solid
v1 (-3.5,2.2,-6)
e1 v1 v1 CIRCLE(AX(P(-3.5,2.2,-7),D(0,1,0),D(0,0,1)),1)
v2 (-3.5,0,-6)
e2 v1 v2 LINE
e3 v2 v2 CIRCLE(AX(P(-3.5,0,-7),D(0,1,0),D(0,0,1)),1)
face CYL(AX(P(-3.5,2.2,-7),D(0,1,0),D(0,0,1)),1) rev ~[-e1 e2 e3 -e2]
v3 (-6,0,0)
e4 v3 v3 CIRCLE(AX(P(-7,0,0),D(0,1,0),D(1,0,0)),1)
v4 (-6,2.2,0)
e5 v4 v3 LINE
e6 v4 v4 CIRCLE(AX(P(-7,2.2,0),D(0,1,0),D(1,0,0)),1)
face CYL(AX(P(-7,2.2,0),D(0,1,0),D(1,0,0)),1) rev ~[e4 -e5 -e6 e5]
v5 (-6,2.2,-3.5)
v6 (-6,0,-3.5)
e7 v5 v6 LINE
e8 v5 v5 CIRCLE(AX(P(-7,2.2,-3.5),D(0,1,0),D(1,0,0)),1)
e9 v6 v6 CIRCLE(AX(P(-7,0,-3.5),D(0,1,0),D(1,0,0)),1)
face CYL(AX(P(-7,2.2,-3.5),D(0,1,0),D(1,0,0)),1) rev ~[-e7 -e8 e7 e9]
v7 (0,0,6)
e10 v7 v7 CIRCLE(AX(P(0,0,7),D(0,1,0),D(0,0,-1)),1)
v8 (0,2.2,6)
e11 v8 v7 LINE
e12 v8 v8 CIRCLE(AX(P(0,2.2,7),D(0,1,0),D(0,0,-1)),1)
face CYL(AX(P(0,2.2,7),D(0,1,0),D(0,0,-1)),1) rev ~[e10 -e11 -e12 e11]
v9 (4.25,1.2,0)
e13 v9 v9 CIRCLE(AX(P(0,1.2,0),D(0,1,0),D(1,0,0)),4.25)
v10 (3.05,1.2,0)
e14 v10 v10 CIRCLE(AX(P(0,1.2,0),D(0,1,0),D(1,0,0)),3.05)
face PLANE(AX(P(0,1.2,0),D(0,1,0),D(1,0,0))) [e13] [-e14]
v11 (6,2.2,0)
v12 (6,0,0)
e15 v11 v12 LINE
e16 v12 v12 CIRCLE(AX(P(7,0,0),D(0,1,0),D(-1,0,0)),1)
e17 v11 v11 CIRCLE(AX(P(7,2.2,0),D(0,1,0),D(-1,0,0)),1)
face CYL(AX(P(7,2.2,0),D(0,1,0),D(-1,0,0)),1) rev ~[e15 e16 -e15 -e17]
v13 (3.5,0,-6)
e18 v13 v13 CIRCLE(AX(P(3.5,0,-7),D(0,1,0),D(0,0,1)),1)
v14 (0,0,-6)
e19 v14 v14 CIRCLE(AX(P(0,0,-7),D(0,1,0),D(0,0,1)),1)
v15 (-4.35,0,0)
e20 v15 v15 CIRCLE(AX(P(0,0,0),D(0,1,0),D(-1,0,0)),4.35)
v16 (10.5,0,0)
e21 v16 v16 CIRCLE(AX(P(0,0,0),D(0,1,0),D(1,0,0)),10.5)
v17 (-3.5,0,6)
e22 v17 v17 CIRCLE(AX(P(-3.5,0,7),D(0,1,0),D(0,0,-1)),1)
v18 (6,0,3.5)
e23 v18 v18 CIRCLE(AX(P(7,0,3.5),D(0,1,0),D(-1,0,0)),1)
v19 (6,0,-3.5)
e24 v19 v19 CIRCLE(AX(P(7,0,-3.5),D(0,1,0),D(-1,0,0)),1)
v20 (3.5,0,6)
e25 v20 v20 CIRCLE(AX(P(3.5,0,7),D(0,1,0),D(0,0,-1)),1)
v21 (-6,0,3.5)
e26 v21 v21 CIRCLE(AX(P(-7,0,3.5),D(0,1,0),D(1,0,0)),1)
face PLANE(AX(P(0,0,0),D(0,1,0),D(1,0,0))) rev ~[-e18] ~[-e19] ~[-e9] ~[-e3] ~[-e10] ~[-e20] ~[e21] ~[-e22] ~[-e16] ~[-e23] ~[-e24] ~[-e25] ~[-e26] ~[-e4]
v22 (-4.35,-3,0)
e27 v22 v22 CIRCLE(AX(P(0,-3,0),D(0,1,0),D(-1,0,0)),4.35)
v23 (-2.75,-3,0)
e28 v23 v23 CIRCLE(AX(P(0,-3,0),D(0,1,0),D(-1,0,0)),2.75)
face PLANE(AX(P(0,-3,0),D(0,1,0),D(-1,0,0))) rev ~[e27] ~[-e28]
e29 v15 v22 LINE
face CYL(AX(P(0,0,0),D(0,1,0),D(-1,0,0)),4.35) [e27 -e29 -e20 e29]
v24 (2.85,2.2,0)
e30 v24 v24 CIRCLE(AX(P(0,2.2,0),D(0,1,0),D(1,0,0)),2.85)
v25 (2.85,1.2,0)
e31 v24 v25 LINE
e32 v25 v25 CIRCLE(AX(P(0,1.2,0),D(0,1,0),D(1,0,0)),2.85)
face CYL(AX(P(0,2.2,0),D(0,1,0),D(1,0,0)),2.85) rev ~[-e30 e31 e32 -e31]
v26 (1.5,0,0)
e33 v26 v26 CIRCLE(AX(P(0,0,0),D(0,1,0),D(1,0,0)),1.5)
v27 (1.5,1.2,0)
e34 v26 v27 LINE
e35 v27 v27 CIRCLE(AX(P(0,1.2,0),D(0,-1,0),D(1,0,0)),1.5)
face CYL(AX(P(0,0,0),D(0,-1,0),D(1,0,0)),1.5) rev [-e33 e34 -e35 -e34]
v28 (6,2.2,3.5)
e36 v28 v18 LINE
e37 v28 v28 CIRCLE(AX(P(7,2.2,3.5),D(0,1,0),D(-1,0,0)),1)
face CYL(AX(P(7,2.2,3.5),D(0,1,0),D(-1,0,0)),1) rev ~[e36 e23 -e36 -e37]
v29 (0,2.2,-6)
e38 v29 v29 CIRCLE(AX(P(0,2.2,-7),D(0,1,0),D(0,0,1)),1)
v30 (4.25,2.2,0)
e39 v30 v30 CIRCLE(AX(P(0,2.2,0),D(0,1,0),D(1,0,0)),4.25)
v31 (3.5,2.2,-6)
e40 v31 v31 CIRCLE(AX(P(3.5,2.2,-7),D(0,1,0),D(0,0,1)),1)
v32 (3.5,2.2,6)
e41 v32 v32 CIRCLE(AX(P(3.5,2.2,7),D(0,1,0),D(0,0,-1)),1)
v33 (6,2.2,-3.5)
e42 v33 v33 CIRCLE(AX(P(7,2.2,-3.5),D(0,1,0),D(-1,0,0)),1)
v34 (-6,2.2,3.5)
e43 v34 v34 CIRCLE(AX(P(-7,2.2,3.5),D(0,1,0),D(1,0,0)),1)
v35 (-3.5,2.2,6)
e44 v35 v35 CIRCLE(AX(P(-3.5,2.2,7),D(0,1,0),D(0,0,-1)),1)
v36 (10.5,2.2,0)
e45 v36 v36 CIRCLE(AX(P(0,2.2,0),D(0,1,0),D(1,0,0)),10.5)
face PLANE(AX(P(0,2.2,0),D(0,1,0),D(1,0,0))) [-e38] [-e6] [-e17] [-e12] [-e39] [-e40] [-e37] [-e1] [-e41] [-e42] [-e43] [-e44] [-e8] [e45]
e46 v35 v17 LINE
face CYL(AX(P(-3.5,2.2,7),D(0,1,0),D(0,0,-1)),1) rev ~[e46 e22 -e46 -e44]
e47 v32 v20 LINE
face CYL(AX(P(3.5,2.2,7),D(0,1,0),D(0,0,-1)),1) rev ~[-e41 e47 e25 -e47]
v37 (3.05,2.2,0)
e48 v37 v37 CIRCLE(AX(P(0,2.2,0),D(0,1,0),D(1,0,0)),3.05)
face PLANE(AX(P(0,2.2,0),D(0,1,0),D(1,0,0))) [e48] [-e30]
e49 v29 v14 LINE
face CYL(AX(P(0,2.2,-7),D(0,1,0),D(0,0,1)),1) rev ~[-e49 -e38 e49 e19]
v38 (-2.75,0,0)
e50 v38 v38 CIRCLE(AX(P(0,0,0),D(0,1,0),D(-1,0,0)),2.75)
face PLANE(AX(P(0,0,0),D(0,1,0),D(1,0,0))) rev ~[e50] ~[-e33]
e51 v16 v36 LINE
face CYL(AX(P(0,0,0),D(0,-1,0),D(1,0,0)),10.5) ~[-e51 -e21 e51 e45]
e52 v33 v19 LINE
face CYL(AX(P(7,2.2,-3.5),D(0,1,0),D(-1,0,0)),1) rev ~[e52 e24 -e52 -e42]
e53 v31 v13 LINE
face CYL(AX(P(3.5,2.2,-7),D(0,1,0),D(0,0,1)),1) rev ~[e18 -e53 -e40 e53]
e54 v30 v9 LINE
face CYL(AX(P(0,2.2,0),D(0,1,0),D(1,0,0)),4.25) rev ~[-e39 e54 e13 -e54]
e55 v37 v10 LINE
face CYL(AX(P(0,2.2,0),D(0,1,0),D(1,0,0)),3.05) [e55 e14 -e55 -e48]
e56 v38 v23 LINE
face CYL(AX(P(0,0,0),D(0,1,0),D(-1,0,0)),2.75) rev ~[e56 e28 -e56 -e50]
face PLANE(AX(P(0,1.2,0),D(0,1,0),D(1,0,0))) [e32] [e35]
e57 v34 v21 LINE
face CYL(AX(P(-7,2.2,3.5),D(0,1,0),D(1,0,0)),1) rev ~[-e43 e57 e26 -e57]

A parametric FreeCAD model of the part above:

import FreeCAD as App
import Part
import Sketcher
Q = App.Units.Quantity

doc = App.newDocument("Part")
body = doc.addObject("PartDesign::Body", "Body")

# Sketch on XZ plane
sketch1 = body.newObject("Sketcher::SketchObject", "Sketch")
sketch1.AttachmentSupport = (doc.getObject("XZ_Plane"), [""])
sketch1.MapMode = "FlatFace"
sketch1.addGeometry([
    Part.Circle(App.Vector(0, 0, 0), App.Vector(0, 0, 1), 4.35),
    Part.Circle(App.Vector(0, 0, 0), App.Vector(0, 0, 1), 2.75),
], False)
sketch1.addConstraint([
    Sketcher.Constraint("Coincident", 0, 3, -1, 1),
    Sketcher.Constraint("Coincident", 1, 3, -1, 1),
    Sketcher.Constraint("Diameter", 0, Q("8.7 mm")),
    Sketcher.Constraint("Diameter", 1, Q("5.5 mm")),
])
pad1 = body.newObject("PartDesign::Pad", "Pad")
pad1.Profile = sketch1
pad1.Length = 3

# Sketch on XZ plane
sketch2 = body.newObject("Sketcher::SketchObject", "Sketch001")
sketch2.AttachmentSupport = (doc.getObject("XZ_Plane"), [""])
sketch2.MapMode = "FlatFace"
sketch2.addGeometry([
    Part.Circle(App.Vector(0, 0, 0), App.Vector(0, 0, 1), 10.5),
    Part.Circle(App.Vector(0, 0, 0), App.Vector(0, 0, 1), 1.5),
], False)
sketch2.addConstraint([
    Sketcher.Constraint("Coincident", 0, 3, -1, 1),
    Sketcher.Constraint("Coincident", 1, 3, -1, 1),
    Sketcher.Constraint("Diameter", 0, Q("21 mm")),
    Sketcher.Constraint("Diameter", 1, Q("3 mm")),
])
pad2 = body.newObject("PartDesign::Pad", "Pad001")
pad2.Profile = sketch2
pad2.Length = 2.2
pad2.Reversed = True

# Sketch on XZ plane
sketch3 = body.newObject("Sketcher::SketchObject", "Sketch002")
sketch3.AttachmentSupport = (doc.getObject("XZ_Plane"), [""])
sketch3.MapMode = "FlatFace"
sketch3.AttachmentOffset = App.Placement(App.Vector(0, 0, -2.2), App.Rotation())
sketch3.addGeometry([
    Part.Circle(App.Vector(0, 0, 0), App.Vector(0, 0, 1), 2.85),
    Part.Circle(App.Vector(0, 0, 0), App.Vector(0, 0, 1), 4.25),
    Part.Circle(App.Vector(0, 0, 0), App.Vector(0, 0, 1), 3.05),
], False)
sketch3.addConstraint([
    Sketcher.Constraint("Coincident", 0, 3, -1, 1),
    Sketcher.Constraint("Coincident", 1, 3, -1, 1),
    Sketcher.Constraint("Coincident", 2, 3, -1, 1),
    Sketcher.Constraint("Diameter", 0, Q("5.7 mm")),
    Sketcher.Constraint("Diameter", 1, Q("8.5 mm")),
    Sketcher.Constraint("Diameter", 2, Q("6.1 mm")),
])
pocket1 = body.newObject("PartDesign::Pocket", "Pocket")
pocket1.Profile = sketch3
pocket1.Length = 1
pocket1.Reversed = True

# Sketch on XZ plane
sketch4 = body.newObject("Sketcher::SketchObject", "Sketch003")
sketch4.AttachmentSupport = (doc.getObject("XZ_Plane"), [""])
sketch4.MapMode = "FlatFace"
sketch4.AttachmentOffset = App.Placement(App.Vector(0, 0, -2.2), App.Rotation())
sketch4.addGeometry([
    Part.Circle(App.Vector(-7, 0, 0), App.Vector(0, 0, 1), 1),
    Part.Circle(App.Vector(-7, 3.5, 0), App.Vector(0, 0, 1), 1),
    Part.Circle(App.Vector(-7, -3.5, 0), App.Vector(0, 0, 1), 1),
], False)
sketch4.addConstraint([
    Sketcher.Constraint("Equal", 0, 1),
    Sketcher.Constraint("Equal", 1, 2),
    Sketcher.Constraint("Symmetric", 1, 3, 2, 3, -1),
    Sketcher.Constraint("PointOnObject", 0, 3, -1),
    Sketcher.Constraint("Vertical", 0, 3, 1, 3),
    Sketcher.Constraint("Diameter", 0, Q("2 mm")),
    Sketcher.Constraint("DistanceX", 0, 3, -1, 1, Q("7 mm")),
    Sketcher.Constraint("DistanceY", 2, 3, 1, 3, Q("7 mm")),
])
pocket2 = body.newObject("PartDesign::Pocket", "Pocket001")
pocket2.Profile = sketch4
pocket2.Length = 7.25
pocket2.Reversed = True
doc.recompute()

polarpattern = body.newObject("PartDesign::PolarPattern", "PolarPattern")
polarpattern.Originals = [pocket2]
polarpattern.Axis = (doc.getObject("Y_Axis"), [""])
polarpattern.Angle = 360
polarpattern.Occurrences = 4
body.Tip = polarpattern

doc.recompute()
